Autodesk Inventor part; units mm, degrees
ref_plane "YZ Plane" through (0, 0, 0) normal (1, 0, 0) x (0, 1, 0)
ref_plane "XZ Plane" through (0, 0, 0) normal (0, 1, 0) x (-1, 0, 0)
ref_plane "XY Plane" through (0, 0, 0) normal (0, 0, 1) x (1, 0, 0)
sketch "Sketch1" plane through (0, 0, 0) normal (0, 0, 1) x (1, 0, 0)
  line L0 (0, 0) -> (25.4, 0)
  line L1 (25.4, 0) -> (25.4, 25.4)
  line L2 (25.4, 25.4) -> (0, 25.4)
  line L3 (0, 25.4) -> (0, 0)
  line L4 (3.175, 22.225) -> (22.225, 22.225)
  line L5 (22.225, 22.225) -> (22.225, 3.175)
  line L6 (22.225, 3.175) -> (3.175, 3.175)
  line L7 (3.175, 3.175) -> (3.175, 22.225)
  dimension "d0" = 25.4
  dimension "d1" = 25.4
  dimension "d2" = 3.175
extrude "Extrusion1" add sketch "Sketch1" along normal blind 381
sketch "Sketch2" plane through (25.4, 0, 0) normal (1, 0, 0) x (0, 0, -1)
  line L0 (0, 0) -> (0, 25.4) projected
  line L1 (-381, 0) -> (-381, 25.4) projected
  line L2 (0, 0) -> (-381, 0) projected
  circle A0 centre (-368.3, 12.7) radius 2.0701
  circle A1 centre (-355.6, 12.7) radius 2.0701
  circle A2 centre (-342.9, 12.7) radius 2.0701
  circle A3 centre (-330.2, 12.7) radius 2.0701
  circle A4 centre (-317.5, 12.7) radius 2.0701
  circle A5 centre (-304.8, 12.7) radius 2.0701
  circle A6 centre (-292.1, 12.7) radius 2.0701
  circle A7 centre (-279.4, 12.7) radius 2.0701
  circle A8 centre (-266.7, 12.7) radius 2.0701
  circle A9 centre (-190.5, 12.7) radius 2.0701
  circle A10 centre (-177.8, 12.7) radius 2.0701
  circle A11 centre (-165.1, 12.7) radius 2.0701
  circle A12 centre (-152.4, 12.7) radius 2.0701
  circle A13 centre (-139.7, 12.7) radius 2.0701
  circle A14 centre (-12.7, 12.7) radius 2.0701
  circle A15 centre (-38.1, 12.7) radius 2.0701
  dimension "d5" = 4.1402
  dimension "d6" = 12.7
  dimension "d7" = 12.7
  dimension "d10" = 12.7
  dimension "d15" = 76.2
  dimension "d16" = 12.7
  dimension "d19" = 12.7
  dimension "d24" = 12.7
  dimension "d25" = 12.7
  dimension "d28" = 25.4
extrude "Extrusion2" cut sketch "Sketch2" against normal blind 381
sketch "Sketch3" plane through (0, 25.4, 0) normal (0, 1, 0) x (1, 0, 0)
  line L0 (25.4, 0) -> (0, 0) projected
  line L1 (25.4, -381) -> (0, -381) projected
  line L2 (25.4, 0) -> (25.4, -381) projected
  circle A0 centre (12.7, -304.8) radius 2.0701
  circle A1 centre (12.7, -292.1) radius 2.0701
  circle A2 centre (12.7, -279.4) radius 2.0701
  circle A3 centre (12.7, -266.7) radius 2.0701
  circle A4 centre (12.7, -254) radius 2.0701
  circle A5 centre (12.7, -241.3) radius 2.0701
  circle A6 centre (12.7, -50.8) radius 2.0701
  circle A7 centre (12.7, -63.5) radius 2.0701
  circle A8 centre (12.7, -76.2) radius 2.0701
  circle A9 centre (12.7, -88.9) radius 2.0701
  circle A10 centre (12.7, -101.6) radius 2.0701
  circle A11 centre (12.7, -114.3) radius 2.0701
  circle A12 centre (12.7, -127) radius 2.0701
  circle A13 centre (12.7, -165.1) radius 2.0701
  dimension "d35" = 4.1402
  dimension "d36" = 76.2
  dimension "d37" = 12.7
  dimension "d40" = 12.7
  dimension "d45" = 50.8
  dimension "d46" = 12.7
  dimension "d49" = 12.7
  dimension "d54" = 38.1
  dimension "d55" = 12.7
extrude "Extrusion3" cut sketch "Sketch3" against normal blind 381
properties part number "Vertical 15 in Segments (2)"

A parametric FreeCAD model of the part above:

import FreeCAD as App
import Part
import Sketcher
from FreeCAD import Vector
Q = App.Units.Quantity


def add_polygon(sketch, points):
    """Adds a closed chain of lines whose ends are joined by coincident constraints."""
    first, n = sketch.GeometryCount, len(points)
    for a, b in zip(points, points[1:] + points[:1]):
        sketch.addGeometry(Part.LineSegment(App.Vector(*a, 0), App.Vector(*b, 0)), False)
    for i in range(n):
        sketch.addConstraint(Sketcher.Constraint("Coincident", first + i, 2, first + (i + 1) % n, 1))

doc = App.newDocument("Part")
body = doc.addObject("PartDesign::Body", "Body")

sketch1 = body.newObject("Sketcher::SketchObject", "Sketch")
sketch1.AttachmentSupport = (doc.getObject("XY_Plane"), [""])
sketch1.MapMode = "FlatFace"
add_polygon(sketch1, [(0, 25), (0, 0), (25, 0), (25, 25)])
add_polygon(sketch1, [(3, 3), (3, 22), (22, 22), (22, 3)])
sketch1.addConstraint(Sketcher.Constraint("Vertical", 0))
sketch1.addConstraint(Sketcher.Constraint("Horizontal", 1))
sketch1.addConstraint(Sketcher.Constraint("Vertical", 2))
sketch1.addConstraint(Sketcher.Constraint("Horizontal", 3))
sketch1.addConstraint(Sketcher.Constraint("Vertical", 4))
sketch1.addConstraint(Sketcher.Constraint("Horizontal", 5))
sketch1.addConstraint(Sketcher.Constraint("Vertical", 6))
sketch1.addConstraint(Sketcher.Constraint("Horizontal", 7))
sketch1.addConstraint(Sketcher.Constraint("Coincident", 0, 2, -1, 1))
sketch1.addConstraint(Sketcher.Constraint("Equal", 3, 0))
sketch1.addConstraint(Sketcher.Constraint("Equal", 7, 4))
sketch1.addConstraint(Sketcher.Constraint("DistanceX", 1, 1, 1, 2, Q("1 in")))
sketch1.addConstraint(Sketcher.Constraint("DistanceX", -1, 1, 4, 2, Q("0.125 in")))
sketch1.addConstraint(Sketcher.Constraint("DistanceY", -1, 1, 6, 2, Q("0.125 in")))
sketch1.addConstraint(Sketcher.Constraint("DistanceY", 4, 2, 3, 2, Q("0.125 in")))
pad1 = body.newObject("PartDesign::Pad", "Pad")
pad1.Profile = sketch1
pad1.Length = Q("15 in")

sketch2 = body.newObject("Sketcher::SketchObject", "Sketch001")
sketch2.AttachmentSupport = (doc.getObject("YZ_Plane"), [""])
sketch2.MapMode = "FlatFace"
sketch2.AttachmentOffset = App.Placement(Vector(0, 0, 1 * 25.4), App.Rotation())
sketch2.addGeometry(Part.Circle(Vector(12.7, 368.3, 0), Vector(0, 0, 1), 2.1), False)
sketch2.addGeometry(Part.Circle(Vector(12.7, 355.6, 0), Vector(0, 0, 1), 2.1), False)
sketch2.addGeometry(Part.Circle(Vector(12.7, 342.9, 0), Vector(0, 0, 1), 2.1), False)
sketch2.addGeometry(Part.Circle(Vector(12.7, 330.2, 0), Vector(0, 0, 1), 2.1), False)
sketch2.addGeometry(Part.Circle(Vector(12.7, 317.5, 0), Vector(0, 0, 1), 2.1), False)
sketch2.addGeometry(Part.Circle(Vector(12.7, 304.8, 0), Vector(0, 0, 1), 2.1), False)
sketch2.addGeometry(Part.Circle(Vector(12.7, 292.1, 0), Vector(0, 0, 1), 2.1), False)
sketch2.addGeometry(Part.Circle(Vector(12.7, 279.4, 0), Vector(0, 0, 1), 2.1), False)
sketch2.addGeometry(Part.Circle(Vector(12.7, 266.7, 0), Vector(0, 0, 1), 2.1), False)
sketch2.addGeometry(Part.Circle(Vector(12.7, 190.5, 0), Vector(0, 0, 1), 2.1), False)
sketch2.addGeometry(Part.Circle(Vector(12.7, 177.8, 0), Vector(0, 0, 1), 2.1), False)
sketch2.addGeometry(Part.Circle(Vector(12.7, 165.1, 0), Vector(0, 0, 1), 2.1), False)
sketch2.addGeometry(Part.Circle(Vector(12.7, 152.4, 0), Vector(0, 0, 1), 2.1), False)
sketch2.addGeometry(Part.Circle(Vector(12.7, 139.7, 0), Vector(0, 0, 1), 2.1), False)
sketch2.addGeometry(Part.Circle(Vector(12.7, 12.7, 0), Vector(0, 0, 1), 2.1), False)
sketch2.addGeometry(Part.Circle(Vector(12.7, 38.1, 0), Vector(0, 0, 1), 2.1), False)
sketch2.addConstraint(Sketcher.Constraint("Equal", 0, 1))
sketch2.addConstraint(Sketcher.Constraint("Equal", 1, 2))
sketch2.addConstraint(Sketcher.Constraint("Equal", 2, 3))
sketch2.addConstraint(Sketcher.Constraint("Equal", 3, 4))
sketch2.addConstraint(Sketcher.Constraint("Equal", 4, 5))
sketch2.addConstraint(Sketcher.Constraint("Equal", 5, 6))
sketch2.addConstraint(Sketcher.Constraint("Equal", 6, 7))
sketch2.addConstraint(Sketcher.Constraint("Equal", 7, 8))
sketch2.addConstraint(Sketcher.Constraint("Equal", 8, 9))
sketch2.addConstraint(Sketcher.Constraint("Equal", 9, 10))
sketch2.addConstraint(Sketcher.Constraint("Equal", 10, 11))
sketch2.addConstraint(Sketcher.Constraint("Equal", 11, 12))
sketch2.addConstraint(Sketcher.Constraint("Equal", 12, 13))
sketch2.addConstraint(Sketcher.Constraint("Equal", 13, 14))
sketch2.addConstraint(Sketcher.Constraint("Equal", 14, 15))
sketch2.addConstraint(Sketcher.Constraint("Vertical", 0, 3, 1, 3))
sketch2.addConstraint(Sketcher.Constraint("Vertical", 1, 3, 2, 3))
sketch2.addConstraint(Sketcher.Constraint("Vertical", 2, 3, 3, 3))
sketch2.addConstraint(Sketcher.Constraint("Vertical", 3, 3, 4, 3))
sketch2.addConstraint(Sketcher.Constraint("Vertical", 4, 3, 5, 3))
sketch2.addConstraint(Sketcher.Constraint("Vertical", 5, 3, 6, 3))
sketch2.addConstraint(Sketcher.Constraint("Vertical", 6, 3, 7, 3))
sketch2.addConstraint(Sketcher.Constraint("Vertical", 7, 3, 8, 3))
sketch2.addConstraint(Sketcher.Constraint("Vertical", 8, 3, 9, 3))
sketch2.addConstraint(Sketcher.Constraint("Vertical", 9, 3, 10, 3))
sketch2.addConstraint(Sketcher.Constraint("Vertical", 10, 3, 11, 3))
sketch2.addConstraint(Sketcher.Constraint("Vertical", 11, 3, 12, 3))
sketch2.addConstraint(Sketcher.Constraint("Vertical", 12, 3, 13, 3))
sketch2.addConstraint(Sketcher.Constraint("Vertical", 13, 3, 14, 3))
sketch2.addConstraint(Sketcher.Constraint("Vertical", 14, 3, 15, 3))
sketch2.addConstraint(Sketcher.Constraint("Diameter", 0, Q("0.163 in")))
sketch2.addConstraint(Sketcher.Constraint("DistanceY", 2, 3, 0, 3, Q("1 in")))
sketch2.addConstraint(Sketcher.Constraint("DistanceY", 3, 3, 1, 3, Q("1 in")))
sketch2.addConstraint(Sketcher.Constraint("DistanceY", 4, 3, 2, 3, Q("1 in")))
sketch2.addConstraint(Sketcher.Constraint("DistanceY", 5, 3, 3, 3, Q("1 in")))
sketch2.addConstraint(Sketcher.Constraint("DistanceY", 6, 3, 4, 3, Q("1 in")))
sketch2.addConstraint(Sketcher.Constraint("DistanceY", 7, 3, 5, 3, Q("1 in")))
sketch2.addConstraint(Sketcher.Constraint("DistanceY", 8, 3, 6, 3, Q("1 in")))
sketch2.addConstraint(Sketcher.Constraint("DistanceY", 9, 3, 8, 3, Q("3 in")))
sketch2.addConstraint(Sketcher.Constraint("DistanceY", 11, 3, 9, 3, Q("1 in")))
sketch2.addConstraint(Sketcher.Constraint("DistanceY", 12, 3, 10, 3, Q("1 in")))
sketch2.addConstraint(Sketcher.Constraint("DistanceY", 13, 3, 11, 3, Q("1 in")))
sketch2.addConstraint(Sketcher.Constraint("DistanceY", 14, 3, 15, 3, Q("1 in")))
sketch2.addConstraint(Sketcher.Constraint("DistanceX", -1, 1, 0, 3, Q("0.5 in")))
sketch2.addConstraint(Sketcher.Constraint("DistanceY", -1, 1, 14, 3, Q("0.5 in")))
sketch2.addConstraint(Sketcher.Constraint("DistanceY", 1, 3, 0, 3, Q("0.5 in")))
sketch2.addConstraint(Sketcher.Constraint("DistanceY", 10, 3, 9, 3, Q("0.5 in")))
sketch2.addConstraint(Sketcher.Constraint("DistanceY", -1, 1, 1, 3, Q("14 in")))
pocket1 = body.newObject("PartDesign::Pocket", "Pocket")
pocket1.Profile = sketch2
pocket1.Length = Q("15 in")

sketch3 = body.newObject("Sketcher::SketchObject", "Sketch002")
sketch3.AttachmentSupport = (doc.getObject("XZ_Plane"), [""])
sketch3.MapMode = "FlatFace"
sketch3.AttachmentOffset = App.Placement(Vector(0, 0, -1 * 25.4), App.Rotation())
sketch3.addGeometry(Part.Circle(Vector(12.7, 304.8, 0), Vector(0, 0, 1), 2.1), False)
sketch3.addGeometry(Part.Circle(Vector(12.7, 292.1, 0), Vector(0, 0, 1), 2.1), False)
sketch3.addGeometry(Part.Circle(Vector(12.7, 279.4, 0), Vector(0, 0, 1), 2.1), False)
sketch3.addGeometry(Part.Circle(Vector(12.7, 266.7, 0), Vector(0, 0, 1), 2.1), False)
sketch3.addGeometry(Part.Circle(Vector(12.7, 254, 0), Vector(0, 0, 1), 2.1), False)
sketch3.addGeometry(Part.Circle(Vector(12.7, 241.3, 0), Vector(0, 0, 1), 2.1), False)
sketch3.addGeometry(Part.Circle(Vector(12.7, 50.8, 0), Vector(0, 0, 1), 2.1), False)
sketch3.addGeometry(Part.Circle(Vector(12.7, 63.5, 0), Vector(0, 0, 1), 2.1), False)
sketch3.addGeometry(Part.Circle(Vector(12.7, 76.2, 0), Vector(0, 0, 1), 2.1), False)
sketch3.addGeometry(Part.Circle(Vector(12.7, 88.9, 0), Vector(0, 0, 1), 2.1), False)
sketch3.addGeometry(Part.Circle(Vector(12.7, 101.6, 0), Vector(0, 0, 1), 2.1), False)
sketch3.addGeometry(Part.Circle(Vector(12.7, 114.3, 0), Vector(0, 0, 1), 2.1), False)
sketch3.addGeometry(Part.Circle(Vector(12.7, 127, 0), Vector(0, 0, 1), 2.1), False)
sketch3.addGeometry(Part.Circle(Vector(12.7, 165.1, 0), Vector(0, 0, 1), 2.1), False)
sketch3.addConstraint(Sketcher.Constraint("Equal", 0, 1))
sketch3.addConstraint(Sketcher.Constraint("Equal", 1, 2))
sketch3.addConstraint(Sketcher.Constraint("Equal", 2, 3))
sketch3.addConstraint(Sketcher.Constraint("Equal", 3, 4))
sketch3.addConstraint(Sketcher.Constraint("Equal", 4, 5))
sketch3.addConstraint(Sketcher.Constraint("Equal", 5, 6))
sketch3.addConstraint(Sketcher.Constraint("Equal", 6, 7))
sketch3.addConstraint(Sketcher.Constraint("Equal", 7, 8))
sketch3.addConstraint(Sketcher.Constraint("Equal", 8, 9))
sketch3.addConstraint(Sketcher.Constraint("Equal", 9, 10))
sketch3.addConstraint(Sketcher.Constraint("Equal", 10, 11))
sketch3.addConstraint(Sketcher.Constraint("Equal", 11, 12))
sketch3.addConstraint(Sketcher.Constraint("Equal", 12, 13))
sketch3.addConstraint(Sketcher.Constraint("Vertical", 0, 3, 1, 3))
sketch3.addConstraint(Sketcher.Constraint("Vertical", 1, 3, 2, 3))
sketch3.addConstraint(Sketcher.Constraint("Vertical", 2, 3, 3, 3))
sketch3.addConstraint(Sketcher.Constraint("Vertical", 3, 3, 4, 3))
sketch3.addConstraint(Sketcher.Constraint("Vertical", 4, 3, 5, 3))
sketch3.addConstraint(Sketcher.Constraint("Vertical", 5, 3, 6, 3))
sketch3.addConstraint(Sketcher.Constraint("Vertical", 6, 3, 7, 3))
sketch3.addConstraint(Sketcher.Constraint("Vertical", 7, 3, 8, 3))
sketch3.addConstraint(Sketcher.Constraint("Vertical", 8, 3, 9, 3))
sketch3.addConstraint(Sketcher.Constraint("Vertical", 9, 3, 10, 3))
sketch3.addConstraint(Sketcher.Constraint("Vertical", 10, 3, 11, 3))
sketch3.addConstraint(Sketcher.Constraint("Vertical", 11, 3, 12, 3))
sketch3.addConstraint(Sketcher.Constraint("Vertical", 12, 3, 13, 3))
sketch3.addConstraint(Sketcher.Constraint("Diameter", 0, Q("0.163 in")))
sketch3.addConstraint(Sketcher.Constraint("DistanceY", -1, 1, 6, 3, Q("2 in")))
sketch3.addConstraint(Sketcher.Constraint("DistanceY", -1, 1, 8, 3, Q("3 in")))
sketch3.addConstraint(Sketcher.Constraint("DistanceY", 2, 3, 0, 3, Q("1 in")))
sketch3.addConstraint(Sketcher.Constraint("DistanceY", 3, 3, 1, 3, Q("1 in")))
sketch3.addConstraint(Sketcher.Constraint("DistanceY", 4, 3, 2, 3, Q("1 in")))
sketch3.addConstraint(Sketcher.Constraint("DistanceY", 5, 3, 3, 3, Q("1 in")))
sketch3.addConstraint(Sketcher.Constraint("DistanceY", 7, 3, 9, 3, Q("1 in")))
sketch3.addConstraint(Sketcher.Constraint("DistanceY", 8, 3, 10, 3, Q("1 in")))
sketch3.addConstraint(Sketcher.Constraint("DistanceY", 9, 3, 11, 3, Q("1 in")))
sketch3.addConstraint(Sketcher.Constraint("DistanceY", 10, 3, 12, 3, Q("1 in")))
sketch3.addConstraint(Sketcher.Constraint("DistanceY", 11, 3, 13, 3, Q("2 in")))
sketch3.addConstraint(Sketcher.Constraint("DistanceY", 13, 3, 5, 3, Q("3 in")))
sketch3.addConstraint(Sketcher.Constraint("DistanceX", -1, 1, 0, 3, Q("0.5 in")))
sketch3.addConstraint(Sketcher.Constraint("DistanceY", 1, 3, 0, 3, Q("0.5 in")))
sketch3.addConstraint(Sketcher.Constraint("DistanceY", 6, 3, 7, 3, Q("0.5 in")))
pocket2 = body.newObject("PartDesign::Pocket", "Pocket001")
pocket2.Profile = sketch3
pocket2.Length = Q("15 in")
pocket2.Reversed = True

doc.recompute()
